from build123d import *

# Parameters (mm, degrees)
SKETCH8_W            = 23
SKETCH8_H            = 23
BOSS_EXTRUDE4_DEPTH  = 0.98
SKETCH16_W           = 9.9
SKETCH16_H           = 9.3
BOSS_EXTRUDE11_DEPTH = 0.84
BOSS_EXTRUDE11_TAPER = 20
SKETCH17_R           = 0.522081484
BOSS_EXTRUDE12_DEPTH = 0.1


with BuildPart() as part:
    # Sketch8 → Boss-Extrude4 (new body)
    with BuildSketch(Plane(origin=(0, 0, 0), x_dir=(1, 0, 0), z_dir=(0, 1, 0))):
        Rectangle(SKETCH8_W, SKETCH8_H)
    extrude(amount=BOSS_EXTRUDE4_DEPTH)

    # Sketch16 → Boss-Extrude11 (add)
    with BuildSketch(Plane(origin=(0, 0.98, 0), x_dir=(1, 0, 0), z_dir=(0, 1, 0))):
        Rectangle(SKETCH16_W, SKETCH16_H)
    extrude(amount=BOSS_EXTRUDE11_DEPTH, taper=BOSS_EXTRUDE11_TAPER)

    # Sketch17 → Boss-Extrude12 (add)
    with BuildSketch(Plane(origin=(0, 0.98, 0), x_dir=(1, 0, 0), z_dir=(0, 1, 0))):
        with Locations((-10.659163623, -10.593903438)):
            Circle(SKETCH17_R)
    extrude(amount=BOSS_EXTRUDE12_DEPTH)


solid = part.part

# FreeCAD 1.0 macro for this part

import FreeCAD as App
import Part
import Sketcher
from FreeCAD import Vector
Q = App.Units.Quantity

doc = App.newDocument("Part")
body = doc.addObject("PartDesign::Body", "Body")

# Sketch on XZ plane
sketch1 = body.newObject("Sketcher::SketchObject", "Sketch")
sketch1.AttachmentSupport = (doc.getObject("XZ_Plane"), [""])
sketch1.MapMode = "FlatFace"
sketch1.addGeometry([
    Part.LineSegment(Vector(-12, -12, 0), Vector(-12, 12, 0)),
    Part.LineSegment(Vector(-12, 12, 0), Vector(12, 12, 0)),
    Part.LineSegment(Vector(12, 12, 0), Vector(12, -12, 0)),
    Part.LineSegment(Vector(12, -12, 0), Vector(-12, -12, 0)),
], False)
sketch1.addConstraint([
    Sketcher.Constraint("Coincident", 0, 2, 1, 1),
    Sketcher.Constraint("Coincident", 1, 2, 2, 1),
    Sketcher.Constraint("Coincident", 2, 2, 3, 1),
    Sketcher.Constraint("Coincident", 3, 2, 0, 1),
    Sketcher.Constraint("Vertical", 0),
    Sketcher.Constraint("Horizontal", 1),
    Sketcher.Constraint("Vertical", 2),
    Sketcher.Constraint("Horizontal", 3),
    Sketcher.Constraint("Symmetric", 0, 2, 2, 2, -1, 1),
    Sketcher.Constraint("Equal", 3, 0),
    Sketcher.Constraint("DistanceX", 1, 1, 1, 2, Q("23 mm")),
])
pad1 = body.newObject("PartDesign::Pad", "Pad")
pad1.Profile = sketch1
pad1.Length = 0.98
pad1.Reversed = True

# Sketch on XZ plane
sketch2 = body.newObject("Sketcher::SketchObject", "Sketch001")
sketch2.AttachmentSupport = (doc.getObject("XZ_Plane"), [""])
sketch2.MapMode = "FlatFace"
sketch2.AttachmentOffset = App.Placement(Vector(0, 0, -0.98), App.Rotation())
sketch2.addGeometry([
    Part.LineSegment(Vector(-5, -5, 0), Vector(-5, 5, 0)),
    Part.LineSegment(Vector(-5, 5, 0), Vector(5, 5, 0)),
    Part.LineSegment(Vector(5, 5, 0), Vector(5, -5, 0)),
    Part.LineSegment(Vector(5, -5, 0), Vector(-5, -5, 0)),
], False)
sketch2.addConstraint([
    Sketcher.Constraint("Coincident", 0, 2, 1, 1),
    Sketcher.Constraint("Coincident", 1, 2, 2, 1),
    Sketcher.Constraint("Coincident", 2, 2, 3, 1),
    Sketcher.Constraint("Coincident", 3, 2, 0, 1),
    Sketcher.Constraint("Vertical", 0),
    Sketcher.Constraint("Horizontal", 1),
    Sketcher.Constraint("Vertical", 2),
    Sketcher.Constraint("Horizontal", 3),
    Sketcher.Constraint("Symmetric", 0, 2, 2, 2, -1, 1),
    Sketcher.Constraint("DistanceX", 1, 1, 1, 2, Q("9.9 mm")),
    Sketcher.Constraint("DistanceY", 0, 1, 0, 2, Q("9.3 mm")),
])
pad2 = body.newObject("PartDesign::Pad", "Pad001")
pad2.Profile = sketch2
pad2.Length = 0.84
pad2.Reversed = True
pad2.TaperAngle = -20

# Sketch on XZ plane
sketch3 = body.newObject("Sketcher::SketchObject", "Sketch002")
sketch3.AttachmentSupport = (doc.getObject("XZ_Plane"), [""])
sketch3.MapMode = "FlatFace"
sketch3.AttachmentOffset = App.Placement(Vector(0, 0, -0.98), App.Rotation())
sketch3.addGeometry(Part.Circle(Vector(-10.7, 10.6, 0), Vector(0, 0, 1), 0.5), False)
sketch3.addConstraint([
    Sketcher.Constraint("Diameter", 0, Q("1.044163 mm")),
    Sketcher.Constraint("DistanceX", 0, 3, -1, 1, Q("10.659164 mm")),
    Sketcher.Constraint("DistanceY", -1, 1, 0, 3, Q("10.593903 mm")),
])
pad3 = body.newObject("PartDesign::Pad", "Pad002")
pad3.Profile = sketch3
pad3.Length = 0.1
pad3.Reversed = True

doc.recompute()
